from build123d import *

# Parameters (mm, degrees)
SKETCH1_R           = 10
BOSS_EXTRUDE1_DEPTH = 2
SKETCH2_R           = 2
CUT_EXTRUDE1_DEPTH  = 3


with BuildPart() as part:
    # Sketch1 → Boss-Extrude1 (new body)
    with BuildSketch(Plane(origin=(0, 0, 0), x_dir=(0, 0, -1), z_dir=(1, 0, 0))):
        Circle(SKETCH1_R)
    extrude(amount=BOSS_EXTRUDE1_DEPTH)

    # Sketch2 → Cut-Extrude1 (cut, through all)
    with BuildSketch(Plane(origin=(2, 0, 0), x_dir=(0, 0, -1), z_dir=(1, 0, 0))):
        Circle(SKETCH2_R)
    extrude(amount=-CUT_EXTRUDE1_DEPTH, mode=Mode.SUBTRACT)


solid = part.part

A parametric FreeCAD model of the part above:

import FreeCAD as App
import Part
import Sketcher

V = App.Vector
Q = App.Units.Quantity

doc = App.newDocument("Part")
body = doc.addObject("PartDesign::Body", "Body")

sketch1 = body.newObject("Sketcher::SketchObject", "Sketch")
sketch1.AttachmentSupport = (doc.getObject("YZ_Plane"), [""])
sketch1.MapMode = "FlatFace"
sketch1.addGeometry(Part.Circle(V(0, 0, 0), V(0, 0, 1), 10), False)
sketch1.addConstraint([
    Sketcher.Constraint("Coincident", 0, 3, -1, 1),
    Sketcher.Constraint("Diameter", 0, Q("20 mm")),
])
pad1 = body.newObject("PartDesign::Pad", "Pad")
pad1.Profile = sketch1
pad1.Length = 2

sketch2 = body.newObject("Sketcher::SketchObject", "Sketch001")
sketch2.AttachmentSupport = (doc.getObject("YZ_Plane"), [""])
sketch2.MapMode = "FlatFace"
sketch2.AttachmentOffset = App.Placement(V(0, 0, 2), App.Rotation())
sketch2.addGeometry(Part.Circle(V(0, 0, 0), V(0, 0, 1), 2), False)
sketch2.addConstraint([
    Sketcher.Constraint("Coincident", 0, 3, -1, 1),
    Sketcher.Constraint("Diameter", 0, Q("4 mm")),
])
pocket1 = body.newObject("PartDesign::Pocket", "Pocket")
pocket1.Profile = sketch2
pocket1.Type = "ThroughAll"

doc.recompute()
